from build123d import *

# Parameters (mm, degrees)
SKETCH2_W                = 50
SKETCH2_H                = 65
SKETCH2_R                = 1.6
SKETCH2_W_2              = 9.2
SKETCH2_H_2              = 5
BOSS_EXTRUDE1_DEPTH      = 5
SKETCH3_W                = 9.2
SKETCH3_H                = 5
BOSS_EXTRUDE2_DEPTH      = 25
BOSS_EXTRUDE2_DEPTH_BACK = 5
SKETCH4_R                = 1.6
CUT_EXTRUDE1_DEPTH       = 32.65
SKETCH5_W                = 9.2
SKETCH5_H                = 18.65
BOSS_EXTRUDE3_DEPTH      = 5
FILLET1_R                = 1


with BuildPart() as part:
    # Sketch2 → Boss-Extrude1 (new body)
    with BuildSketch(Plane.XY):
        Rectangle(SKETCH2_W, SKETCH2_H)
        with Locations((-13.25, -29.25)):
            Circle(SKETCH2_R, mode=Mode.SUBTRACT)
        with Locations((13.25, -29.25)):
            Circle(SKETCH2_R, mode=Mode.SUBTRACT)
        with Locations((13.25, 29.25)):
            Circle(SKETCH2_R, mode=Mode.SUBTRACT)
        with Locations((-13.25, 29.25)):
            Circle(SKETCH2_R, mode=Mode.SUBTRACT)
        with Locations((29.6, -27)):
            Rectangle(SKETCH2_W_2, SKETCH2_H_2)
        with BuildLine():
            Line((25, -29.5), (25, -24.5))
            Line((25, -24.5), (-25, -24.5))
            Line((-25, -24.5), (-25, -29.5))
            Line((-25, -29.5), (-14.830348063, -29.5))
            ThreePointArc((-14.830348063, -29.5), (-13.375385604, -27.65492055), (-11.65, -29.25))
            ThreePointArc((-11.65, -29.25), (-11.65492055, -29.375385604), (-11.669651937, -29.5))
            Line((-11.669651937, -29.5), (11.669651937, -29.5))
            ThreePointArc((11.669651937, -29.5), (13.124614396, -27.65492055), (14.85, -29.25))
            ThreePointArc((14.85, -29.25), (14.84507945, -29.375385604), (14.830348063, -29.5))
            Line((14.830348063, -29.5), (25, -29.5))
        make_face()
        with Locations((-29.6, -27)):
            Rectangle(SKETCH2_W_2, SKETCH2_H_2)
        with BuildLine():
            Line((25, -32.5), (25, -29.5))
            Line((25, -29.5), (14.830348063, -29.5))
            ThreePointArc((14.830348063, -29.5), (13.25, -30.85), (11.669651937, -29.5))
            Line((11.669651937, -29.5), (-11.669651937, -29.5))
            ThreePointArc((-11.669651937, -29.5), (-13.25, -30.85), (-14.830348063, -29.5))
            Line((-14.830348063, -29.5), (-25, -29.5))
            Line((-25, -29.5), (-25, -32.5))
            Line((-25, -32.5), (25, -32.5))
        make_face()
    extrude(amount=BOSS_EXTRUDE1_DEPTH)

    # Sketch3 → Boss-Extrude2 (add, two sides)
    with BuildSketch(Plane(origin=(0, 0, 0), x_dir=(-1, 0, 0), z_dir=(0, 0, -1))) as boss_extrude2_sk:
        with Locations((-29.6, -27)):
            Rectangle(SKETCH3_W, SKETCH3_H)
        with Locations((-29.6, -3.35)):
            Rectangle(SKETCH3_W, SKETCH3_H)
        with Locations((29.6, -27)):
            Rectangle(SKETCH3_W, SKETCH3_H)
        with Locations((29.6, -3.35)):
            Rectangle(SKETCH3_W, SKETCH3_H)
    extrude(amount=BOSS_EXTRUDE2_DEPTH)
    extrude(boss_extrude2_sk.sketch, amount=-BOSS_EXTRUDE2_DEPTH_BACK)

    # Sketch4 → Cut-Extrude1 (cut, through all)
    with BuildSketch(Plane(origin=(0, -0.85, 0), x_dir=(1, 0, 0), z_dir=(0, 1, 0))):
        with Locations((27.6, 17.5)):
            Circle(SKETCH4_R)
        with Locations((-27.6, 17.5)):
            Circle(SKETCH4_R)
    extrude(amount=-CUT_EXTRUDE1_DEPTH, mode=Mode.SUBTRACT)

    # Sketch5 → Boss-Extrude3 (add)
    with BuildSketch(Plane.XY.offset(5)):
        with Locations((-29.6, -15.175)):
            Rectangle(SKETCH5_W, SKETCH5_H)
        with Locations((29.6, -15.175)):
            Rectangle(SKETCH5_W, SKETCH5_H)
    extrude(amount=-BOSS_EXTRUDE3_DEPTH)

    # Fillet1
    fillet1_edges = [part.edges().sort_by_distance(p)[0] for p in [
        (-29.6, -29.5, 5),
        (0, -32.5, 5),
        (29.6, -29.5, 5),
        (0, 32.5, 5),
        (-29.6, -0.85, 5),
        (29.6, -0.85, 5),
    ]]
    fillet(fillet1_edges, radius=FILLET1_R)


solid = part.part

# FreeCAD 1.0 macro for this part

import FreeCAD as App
import Part
import Sketcher

V = App.Vector


def edges_at(feature, points):
    """Names of the edges that pass closest to the given points."""
    edges = feature.Shape.Edges
    near = lambda p: min(range(len(edges)), key=lambda i: edges[i].distToShape(Part.Vertex(*p))[0])
    return sorted({f"Edge{near(p) + 1}" for p in points})


def add_polygon(sketch, points):
    """Adds a closed chain of lines whose ends are joined by coincident constraints."""
    first, n = sketch.GeometryCount, len(points)
    for a, b in zip(points, points[1:] + points[:1]):
        sketch.addGeometry(Part.LineSegment(App.Vector(*a, 0), App.Vector(*b, 0)), False)
    for i in range(n):
        sketch.addConstraint(Sketcher.Constraint("Coincident", first + i, 2, first + (i + 1) % n, 1))

doc = App.newDocument("Part")
body = doc.addObject("PartDesign::Body", "Body")

# Sketch on XY plane
sketch1 = doc.addObject("Sketcher::SketchObject", "Sketch")
body.addObject(sketch1)
sketch1.AttachmentSupport = (doc.XY_Plane, [""])
sketch1.MapMode = "FlatFace"
add_polygon(sketch1, [(-25, -29.5), (-25, -32.5), (25, -32.5), (25, -29.5), (34.2, -29.5), (34.2, -24.5), (25, -24.5), (25, 32.5), (-25, 32.5), (-25, -24.5), (-34.2, -24.5), (-34.2, -29.5)])  # lines 0-11
sketch1.addGeometry(Part.Circle(V(-13.2, -29.2, 0), V(0, 0, 1), 1.6), False)  # 12
sketch1.addGeometry(Part.Circle(V(13.2, -29.2, 0), V(0, 0, 1), 1.6), False)  # 13
sketch1.addGeometry(Part.Circle(V(13.2, 29.2, 0), V(0, 0, 1), 1.6), False)  # 14
sketch1.addGeometry(Part.Circle(V(-13.2, 29.2, 0), V(0, 0, 1), 1.6), False)  # 15
sketch1.addConstraint([
    Sketcher.Constraint("Vertical", 0),
    Sketcher.Constraint("Horizontal", 1),
    Sketcher.Constraint("Vertical", 2),
    Sketcher.Constraint("Horizontal", 3),
    Sketcher.Constraint("Vertical", 4),
    Sketcher.Constraint("Horizontal", 5),
    Sketcher.Constraint("Vertical", 6),
    Sketcher.Constraint("Horizontal", 7),
    Sketcher.Constraint("Vertical", 8),
    Sketcher.Constraint("Horizontal", 9),
    Sketcher.Constraint("Vertical", 10),
    Sketcher.Constraint("Horizontal", 11),
    Sketcher.Constraint("Equal", 12, 13),
    Sketcher.Constraint("Equal", 13, 14),
    Sketcher.Constraint("Equal", 14, 15),
    Sketcher.Constraint("Symmetric", 12, 3, 14, 3, -1, 1),
    Sketcher.Constraint("Symmetric", 13, 3, 15, 3, -1, 1),
    Sketcher.Constraint("Symmetric", 0, 2, 6, 2, -1, 1),
    Sketcher.Constraint("Symmetric", 12, 3, 13, 3, -2),
    Sketcher.Constraint("Symmetric", 5, 2, 8, 2, -2),
    Sketcher.Constraint("Symmetric", 3, 2, 10, 2, -2),
    Sketcher.Constraint("Vertical", 2, 2, 5, 2),
    Sketcher.Constraint("Diameter", 12, 3.2),
    Sketcher.Constraint("DistanceX", 1, 1, 1, 2, 50.0),
    Sketcher.Constraint("DistanceY", 0, 2, 0, 1, 3.0),
    Sketcher.Constraint("DistanceY", 4, 1, 4, 2, 5.0),
    Sketcher.Constraint("DistanceY", 6, 1, 6, 2, 57.0),
    Sketcher.Constraint("DistanceX", 3, 1, 3, 2, 9.2),
    Sketcher.Constraint("DistanceX", 12, 3, 13, 3, 26.5),
    Sketcher.Constraint("DistanceY", 13, 3, 14, 3, 58.5),
])
pad1 = doc.addObject("PartDesign::Pad", "Pad")
body.addObject(pad1)
pad1.Profile = sketch1
pad1.Length = 5

# Sketch on XY plane
sketch2 = doc.addObject("Sketcher::SketchObject", "Sketch001")
body.addObject(sketch2)
sketch2.AttachmentSupport = (doc.XY_Plane, [""])
sketch2.MapMode = "FlatFace"
add_polygon(sketch2, [(34, -24), (34, -30), (25, -30), (25, -24)])  # lines 0-3
add_polygon(sketch2, [(34, -1), (34, -6), (25, -6), (25, -1)])  # lines 4-7
add_polygon(sketch2, [(-25, -24), (-25, -30), (-34, -30), (-34, -24)])  # lines 8-11
add_polygon(sketch2, [(-25, -1), (-25, -6), (-34, -6), (-34, -1)])  # lines 12-15
sketch2.addConstraint([
    Sketcher.Constraint("Vertical", 0),
    Sketcher.Constraint("Horizontal", 1),
    Sketcher.Constraint("Vertical", 2),
    Sketcher.Constraint("Horizontal", 3),
    Sketcher.Constraint("Vertical", 4),
    Sketcher.Constraint("Horizontal", 5),
    Sketcher.Constraint("Vertical", 6),
    Sketcher.Constraint("Horizontal", 7),
    Sketcher.Constraint("Vertical", 8),
    Sketcher.Constraint("Horizontal", 9),
    Sketcher.Constraint("Vertical", 10),
    Sketcher.Constraint("Horizontal", 11),
    Sketcher.Constraint("Vertical", 12),
    Sketcher.Constraint("Horizontal", 13),
    Sketcher.Constraint("Vertical", 14),
    Sketcher.Constraint("Horizontal", 15),
    Sketcher.Constraint("Symmetric", 1, 2, 8, 2, -2),
    Sketcher.Constraint("Symmetric", 3, 2, 10, 2, -2),
    Sketcher.Constraint("Symmetric", 5, 2, 12, 2, -2),
    Sketcher.Constraint("Symmetric", 7, 2, 14, 2, -2),
    Sketcher.Constraint("Vertical", 3, 2, 4, 2),
    Sketcher.Constraint("Vertical", 2, 2, 5, 2),
    Sketcher.Constraint("Equal", 2, 4),
    Sketcher.Constraint("DistanceY", 0, 2, 0, 1, 5.0),
    Sketcher.Constraint("DistanceX", 1, 2, 1, 1, 9.2),
    Sketcher.Constraint("DistanceX", -1, 1, 1, 2, 25.0),
    Sketcher.Constraint("DistanceY", 0, 2, -1, 1, 29.5),
    Sketcher.Constraint("DistanceY", 4, 2, -1, 1, 5.85),
])
pad2 = doc.addObject("PartDesign::Pad", "Pad001")
body.addObject(pad2)
pad2.Profile = sketch2
pad2.Type = "TwoLengths"
pad2.Length = 25
pad2.Length2 = 5
pad2.Reversed = True

# Sketch on XZ plane
sketch3 = doc.addObject("Sketcher::SketchObject", "Sketch002")
body.addObject(sketch3)
sketch3.AttachmentSupport = (doc.XZ_Plane, [""])
sketch3.MapMode = "FlatFace"
sketch3.AttachmentOffset = App.Placement(V(0, 0, 0.85), App.Rotation())
sketch3.addGeometry([
    Part.Circle(V(27.6, -17.5, 0), V(0, 0, 1), 1.6),
    Part.Circle(V(-27.6, -17.5, 0), V(0, 0, 1), 1.6),
], False)
sketch3.addConstraint([
    Sketcher.Constraint("Equal", 0, 1),
    Sketcher.Constraint("Symmetric", 0, 3, 1, 3, -2),
    Sketcher.Constraint("Diameter", 0, 3.2),
    Sketcher.Constraint("DistanceX", -1, 1, 0, 3, 27.6),
    Sketcher.Constraint("DistanceY", 0, 3, -1, 1, 17.5),
])
pocket1 = doc.addObject("PartDesign::Pocket", "Pocket")
body.addObject(pocket1)
pocket1.Profile = sketch3
pocket1.Type = "ThroughAll"
pocket1.Reversed = True

# Sketch on XY plane
sketch4 = doc.addObject("Sketcher::SketchObject", "Sketch003")
body.addObject(sketch4)
sketch4.AttachmentSupport = (doc.XY_Plane, [""])
sketch4.MapMode = "FlatFace"
sketch4.AttachmentOffset = App.Placement(V(0, 0, 5), App.Rotation())
add_polygon(sketch4, [(-34, -6), (-34, -24), (-25, -24), (-25, -6)])  # lines 0-3
add_polygon(sketch4, [(25, -6), (25, -24), (34, -24), (34, -6)])  # lines 4-7
sketch4.addConstraint([
    Sketcher.Constraint("Vertical", 0),
    Sketcher.Constraint("Horizontal", 1),
    Sketcher.Constraint("Vertical", 2),
    Sketcher.Constraint("Horizontal", 3),
    Sketcher.Constraint("Vertical", 4),
    Sketcher.Constraint("Horizontal", 5),
    Sketcher.Constraint("Vertical", 6),
    Sketcher.Constraint("Horizontal", 7),
    Sketcher.Constraint("Symmetric", 1, 2, 4, 2, -2),
    Sketcher.Constraint("Symmetric", 3, 2, 6, 2, -2),
    Sketcher.Constraint("DistanceX", 1, 1, 1, 2, 9.2),
    Sketcher.Constraint("DistanceX", 1, 2, -1, 1, 25.0),
    Sketcher.Constraint("DistanceY", 0, 2, 0, 1, 18.65),
    Sketcher.Constraint("DistanceY", 0, 2, -1, 1, 24.5),
])
pad3 = doc.addObject("PartDesign::Pad", "Pad002")
body.addObject(pad3)
pad3.Profile = sketch4
pad3.Length = 5
pad3.Reversed = True
doc.recompute()

fillet = doc.addObject("PartDesign::Fillet", "Fillet")
body.addObject(fillet)
fillet.Base = (pad3, edges_at(pad3, [
    (-29.6, -29.5, 5),
    (0, -32.5, 5),
    (29.6, -29.5, 5),
    (0, 32.5, 5),
    (-29.6, -0.85, 5),
    (29.6, -0.85, 5),
]))
fillet.Radius = 1

doc.recompute()
